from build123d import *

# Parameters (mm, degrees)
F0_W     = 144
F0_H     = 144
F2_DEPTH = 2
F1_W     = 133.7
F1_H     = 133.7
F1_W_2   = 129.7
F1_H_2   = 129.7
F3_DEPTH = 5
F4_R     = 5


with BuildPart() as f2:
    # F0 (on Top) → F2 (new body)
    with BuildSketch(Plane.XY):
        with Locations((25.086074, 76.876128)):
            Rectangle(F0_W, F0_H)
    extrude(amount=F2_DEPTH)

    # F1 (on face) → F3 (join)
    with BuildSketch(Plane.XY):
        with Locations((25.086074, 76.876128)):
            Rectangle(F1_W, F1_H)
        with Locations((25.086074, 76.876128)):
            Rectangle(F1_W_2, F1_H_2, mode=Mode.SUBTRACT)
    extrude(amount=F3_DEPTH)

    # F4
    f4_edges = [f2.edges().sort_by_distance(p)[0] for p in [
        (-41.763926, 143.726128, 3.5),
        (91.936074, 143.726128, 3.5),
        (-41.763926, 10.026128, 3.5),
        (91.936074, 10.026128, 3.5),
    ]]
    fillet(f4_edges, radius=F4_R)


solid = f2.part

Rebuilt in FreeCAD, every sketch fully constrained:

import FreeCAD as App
import Part
import Sketcher
Q = App.Units.Quantity


def edges_at(feature, points):
    """Names of the edges that pass closest to the given points."""
    edges = feature.Shape.Edges
    near = lambda p: min(range(len(edges)), key=lambda i: edges[i].distToShape(Part.Vertex(*p))[0])
    return sorted({f"Edge{near(p) + 1}" for p in points})


def add_polygon(sketch, points):
    """Adds a closed chain of lines whose ends are joined by coincident constraints."""
    first, n = sketch.GeometryCount, len(points)
    for a, b in zip(points, points[1:] + points[:1]):
        sketch.addGeometry(Part.LineSegment(App.Vector(*a, 0), App.Vector(*b, 0)), False)
    for i in range(n):
        sketch.addConstraint(Sketcher.Constraint("Coincident", first + i, 2, first + (i + 1) % n, 1))

doc = App.newDocument("Part")
body = doc.addObject("PartDesign::Body", "Body")

sketch1 = body.newObject("Sketcher::SketchObject", "Sketch")
sketch1.AttachmentSupport = (doc.getObject("XY_Plane"), [""])
sketch1.MapMode = "FlatFace"
add_polygon(sketch1, [(-47, 149), (-47, 5), (97, 5), (97, 149)])
sketch1.addConstraint(Sketcher.Constraint("Vertical", 0))
sketch1.addConstraint(Sketcher.Constraint("Horizontal", 1))
sketch1.addConstraint(Sketcher.Constraint("Vertical", 2))
sketch1.addConstraint(Sketcher.Constraint("Horizontal", 3))
sketch1.addConstraint(Sketcher.Constraint("Equal", 3, 0))
sketch1.addConstraint(Sketcher.Constraint("DistanceX", 1, 1, 1, 2, Q("144 mm")))
sketch1.addConstraint(Sketcher.Constraint("DistanceY", -1, 1, 2, 2, Q("148.876128 mm")))
sketch1.addConstraint(Sketcher.Constraint("DistanceX", 0, 2, -1, 1, Q("46.913926 mm")))
pad1 = body.newObject("PartDesign::Pad", "Pad")
pad1.Profile = sketch1
pad1.Length = 2

sketch2 = body.newObject("Sketcher::SketchObject", "Sketch001")
sketch2.AttachmentSupport = (doc.getObject("XY_Plane"), [""])
sketch2.MapMode = "FlatFace"
add_polygon(sketch2, [(-42, 144), (-42, 10), (92, 10), (92, 144)])
add_polygon(sketch2, [(90, 12), (-40, 12), (-40, 142), (90, 142)])
sketch2.addConstraint(Sketcher.Constraint("Vertical", 0))
sketch2.addConstraint(Sketcher.Constraint("Horizontal", 1))
sketch2.addConstraint(Sketcher.Constraint("Vertical", 2))
sketch2.addConstraint(Sketcher.Constraint("Horizontal", 3))
sketch2.addConstraint(Sketcher.Constraint("Horizontal", 4))
sketch2.addConstraint(Sketcher.Constraint("Vertical", 5))
sketch2.addConstraint(Sketcher.Constraint("Horizontal", 6))
sketch2.addConstraint(Sketcher.Constraint("Vertical", 7))
sketch2.addConstraint(Sketcher.Constraint("Equal", 3, 0))
sketch2.addConstraint(Sketcher.Constraint("Equal", 6, 5))
sketch2.addConstraint(Sketcher.Constraint("DistanceX", 1, 1, 1, 2, Q("133.7 mm")))
sketch2.addConstraint(Sketcher.Constraint("DistanceX", 4, 2, 4, 1, Q("129.7 mm")))
sketch2.addConstraint(Sketcher.Constraint("DistanceX", 0, 2, 4, 2, Q("2 mm")))
sketch2.addConstraint(Sketcher.Constraint("DistanceY", 0, 2, 4, 2, Q("2 mm")))
sketch2.addConstraint(Sketcher.Constraint("DistanceX", 0, 2, -1, 1, Q("41.763926 mm")))
sketch2.addConstraint(Sketcher.Constraint("DistanceY", -1, 1, 0, 2, Q("10.026128 mm")))
pad2 = body.newObject("PartDesign::Pad", "Pad001")
pad2.Profile = sketch2
pad2.Length = 5
doc.recompute()

fillet = body.newObject("PartDesign::Fillet", "Fillet")
fillet.Base = (pad2, edges_at(pad2, [
    (-41.764, 143.726, 3.5),
    (91.936, 143.726, 3.5),
    (-41.764, 10.026, 3.5),
    (91.936, 10.026, 3.5),
]))
fillet.Radius = 5

doc.recompute()
